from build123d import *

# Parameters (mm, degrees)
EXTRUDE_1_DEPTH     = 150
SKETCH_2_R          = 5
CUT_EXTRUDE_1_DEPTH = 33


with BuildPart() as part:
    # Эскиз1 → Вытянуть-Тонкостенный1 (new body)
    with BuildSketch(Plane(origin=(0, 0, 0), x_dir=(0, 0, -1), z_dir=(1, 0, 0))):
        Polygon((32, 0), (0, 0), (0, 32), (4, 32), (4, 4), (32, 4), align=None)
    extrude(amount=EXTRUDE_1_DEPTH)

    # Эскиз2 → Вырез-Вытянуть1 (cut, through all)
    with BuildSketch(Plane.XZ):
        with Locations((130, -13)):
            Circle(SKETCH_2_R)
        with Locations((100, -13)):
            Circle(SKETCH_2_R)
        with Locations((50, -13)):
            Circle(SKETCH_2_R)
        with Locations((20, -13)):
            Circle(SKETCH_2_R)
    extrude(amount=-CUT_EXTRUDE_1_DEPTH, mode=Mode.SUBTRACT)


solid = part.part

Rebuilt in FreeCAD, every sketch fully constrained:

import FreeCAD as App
import Part
import Sketcher
Q = App.Units.Quantity

doc = App.newDocument("Part")
params = doc.addObject("Spreadsheet::Sheet", "Params")
for row, (alias, value) in enumerate([
    ("sketch1_width", "4 mm"),
    ("sketch1_width2", "28 mm"),
    ("pad1_length", "150 mm"),
    ("sketch2_diameter", "10 mm"),
], start=1):
    params.set(f"A{row}", alias)
    params.set(f"B{row}", "=" + value)
    params.setAlias(f"B{row}", alias)

body = doc.addObject("PartDesign::Body", "Body")

# Sketch on YZ plane
sketch1 = doc.addObject("Sketcher::SketchObject", "Sketch")
body.addObject(sketch1)
sketch1.AttachmentSupport = (doc.YZ_Plane, [""])
sketch1.MapMode = "FlatFace"
sketch1.addGeometry(Part.LineSegment(App.Vector(0, 0, 0), App.Vector(0, -32, 0)), False)
sketch1.addGeometry(Part.LineSegment(App.Vector(0, -32, 0), App.Vector(4, -32, 0)), False)
sketch1.addGeometry(Part.LineSegment(App.Vector(4, -32, 0), App.Vector(4, -4, 0)), False)
sketch1.addGeometry(Part.LineSegment(App.Vector(4, -4, 0), App.Vector(32, -4, 0)), False)
sketch1.addGeometry(Part.LineSegment(App.Vector(32, -4, 0), App.Vector(32, 0, 0)), False)
sketch1.addGeometry(Part.LineSegment(App.Vector(32, 0, 0), App.Vector(0, 0, 0)), False)
sketch1.addConstraint(Sketcher.Constraint("Coincident", 0, 2, 1, 1))
sketch1.addConstraint(Sketcher.Constraint("Coincident", 1, 2, 2, 1))
sketch1.addConstraint(Sketcher.Constraint("Coincident", 2, 2, 3, 1))
sketch1.addConstraint(Sketcher.Constraint("Coincident", 3, 2, 4, 1))
sketch1.addConstraint(Sketcher.Constraint("Coincident", 4, 2, 5, 1))
sketch1.addConstraint(Sketcher.Constraint("Coincident", 5, 2, 0, 1))
sketch1.addConstraint(Sketcher.Constraint("Vertical", 0))
sketch1.addConstraint(Sketcher.Constraint("Horizontal", 1))
sketch1.addConstraint(Sketcher.Constraint("Vertical", 2))
sketch1.addConstraint(Sketcher.Constraint("Horizontal", 3))
sketch1.addConstraint(Sketcher.Constraint("Vertical", 4))
sketch1.addConstraint(Sketcher.Constraint("Horizontal", 5))
sketch1.addConstraint(Sketcher.Constraint("Coincident", 5, 2, -1, 1))
sketch1.addConstraint(Sketcher.Constraint("Equal", 5, 0))
sketch1.addConstraint(Sketcher.Constraint("Equal", 3, 2))
sketch1.addConstraint(Sketcher.Constraint("DistanceX", 1, 1, 1, 2, Q("4 mm")))
sketch1.addConstraint(Sketcher.Constraint("DistanceX", 3, 1, 3, 2, Q("28 mm")))
sketch1.setExpression("Constraints[15]", "Params.sketch1_width")
sketch1.setExpression("Constraints[16]", "Params.sketch1_width2")
pad1 = doc.addObject("PartDesign::Pad", "Pad")
body.addObject(pad1)
pad1.Profile = sketch1
pad1.setExpression("Length", "Params.pad1_length")

# Sketch on XZ plane
sketch2 = doc.addObject("Sketcher::SketchObject", "Sketch001")
body.addObject(sketch2)
sketch2.AttachmentSupport = (doc.XZ_Plane, [""])
sketch2.MapMode = "FlatFace"
sketch2.addGeometry(Part.Circle(App.Vector(130, -13, 0), App.Vector(0, 0, 1), 5), False)
sketch2.addGeometry(Part.Circle(App.Vector(100, -13, 0), App.Vector(0, 0, 1), 5), False)
sketch2.addGeometry(Part.Circle(App.Vector(50, -13, 0), App.Vector(0, 0, 1), 5), False)
sketch2.addGeometry(Part.Circle(App.Vector(20, -13, 0), App.Vector(0, 0, 1), 5), False)
sketch2.addConstraint(Sketcher.Constraint("Equal", 0, 1))
sketch2.addConstraint(Sketcher.Constraint("Equal", 1, 2))
sketch2.addConstraint(Sketcher.Constraint("Equal", 2, 3))
sketch2.addConstraint(Sketcher.Constraint("Horizontal", 0, 3, 1, 3))
sketch2.addConstraint(Sketcher.Constraint("Horizontal", 1, 3, 2, 3))
sketch2.addConstraint(Sketcher.Constraint("Horizontal", 2, 3, 3, 3))
sketch2.addConstraint(Sketcher.Constraint("Diameter", 0, Q("10 mm")))
sketch2.addConstraint(Sketcher.Constraint("DistanceX", -1, 1, 0, 3, Q("130 mm")))
sketch2.addConstraint(Sketcher.Constraint("DistanceY", 0, 3, -1, 1, Q("13 mm")))
sketch2.addConstraint(Sketcher.Constraint("DistanceX", -1, 1, 1, 3, Q("100 mm")))
sketch2.addConstraint(Sketcher.Constraint("DistanceX", -1, 1, 2, 3, Q("50 mm")))
sketch2.addConstraint(Sketcher.Constraint("DistanceX", -1, 1, 3, 3, Q("20 mm")))
sketch2.setExpression("Constraints[6]", "Params.sketch2_diameter")
pocket1 = doc.addObject("PartDesign::Pocket", "Pocket")
body.addObject(pocket1)
pocket1.Profile = sketch2
pocket1.Type = "ThroughAll"

doc.recompute()
